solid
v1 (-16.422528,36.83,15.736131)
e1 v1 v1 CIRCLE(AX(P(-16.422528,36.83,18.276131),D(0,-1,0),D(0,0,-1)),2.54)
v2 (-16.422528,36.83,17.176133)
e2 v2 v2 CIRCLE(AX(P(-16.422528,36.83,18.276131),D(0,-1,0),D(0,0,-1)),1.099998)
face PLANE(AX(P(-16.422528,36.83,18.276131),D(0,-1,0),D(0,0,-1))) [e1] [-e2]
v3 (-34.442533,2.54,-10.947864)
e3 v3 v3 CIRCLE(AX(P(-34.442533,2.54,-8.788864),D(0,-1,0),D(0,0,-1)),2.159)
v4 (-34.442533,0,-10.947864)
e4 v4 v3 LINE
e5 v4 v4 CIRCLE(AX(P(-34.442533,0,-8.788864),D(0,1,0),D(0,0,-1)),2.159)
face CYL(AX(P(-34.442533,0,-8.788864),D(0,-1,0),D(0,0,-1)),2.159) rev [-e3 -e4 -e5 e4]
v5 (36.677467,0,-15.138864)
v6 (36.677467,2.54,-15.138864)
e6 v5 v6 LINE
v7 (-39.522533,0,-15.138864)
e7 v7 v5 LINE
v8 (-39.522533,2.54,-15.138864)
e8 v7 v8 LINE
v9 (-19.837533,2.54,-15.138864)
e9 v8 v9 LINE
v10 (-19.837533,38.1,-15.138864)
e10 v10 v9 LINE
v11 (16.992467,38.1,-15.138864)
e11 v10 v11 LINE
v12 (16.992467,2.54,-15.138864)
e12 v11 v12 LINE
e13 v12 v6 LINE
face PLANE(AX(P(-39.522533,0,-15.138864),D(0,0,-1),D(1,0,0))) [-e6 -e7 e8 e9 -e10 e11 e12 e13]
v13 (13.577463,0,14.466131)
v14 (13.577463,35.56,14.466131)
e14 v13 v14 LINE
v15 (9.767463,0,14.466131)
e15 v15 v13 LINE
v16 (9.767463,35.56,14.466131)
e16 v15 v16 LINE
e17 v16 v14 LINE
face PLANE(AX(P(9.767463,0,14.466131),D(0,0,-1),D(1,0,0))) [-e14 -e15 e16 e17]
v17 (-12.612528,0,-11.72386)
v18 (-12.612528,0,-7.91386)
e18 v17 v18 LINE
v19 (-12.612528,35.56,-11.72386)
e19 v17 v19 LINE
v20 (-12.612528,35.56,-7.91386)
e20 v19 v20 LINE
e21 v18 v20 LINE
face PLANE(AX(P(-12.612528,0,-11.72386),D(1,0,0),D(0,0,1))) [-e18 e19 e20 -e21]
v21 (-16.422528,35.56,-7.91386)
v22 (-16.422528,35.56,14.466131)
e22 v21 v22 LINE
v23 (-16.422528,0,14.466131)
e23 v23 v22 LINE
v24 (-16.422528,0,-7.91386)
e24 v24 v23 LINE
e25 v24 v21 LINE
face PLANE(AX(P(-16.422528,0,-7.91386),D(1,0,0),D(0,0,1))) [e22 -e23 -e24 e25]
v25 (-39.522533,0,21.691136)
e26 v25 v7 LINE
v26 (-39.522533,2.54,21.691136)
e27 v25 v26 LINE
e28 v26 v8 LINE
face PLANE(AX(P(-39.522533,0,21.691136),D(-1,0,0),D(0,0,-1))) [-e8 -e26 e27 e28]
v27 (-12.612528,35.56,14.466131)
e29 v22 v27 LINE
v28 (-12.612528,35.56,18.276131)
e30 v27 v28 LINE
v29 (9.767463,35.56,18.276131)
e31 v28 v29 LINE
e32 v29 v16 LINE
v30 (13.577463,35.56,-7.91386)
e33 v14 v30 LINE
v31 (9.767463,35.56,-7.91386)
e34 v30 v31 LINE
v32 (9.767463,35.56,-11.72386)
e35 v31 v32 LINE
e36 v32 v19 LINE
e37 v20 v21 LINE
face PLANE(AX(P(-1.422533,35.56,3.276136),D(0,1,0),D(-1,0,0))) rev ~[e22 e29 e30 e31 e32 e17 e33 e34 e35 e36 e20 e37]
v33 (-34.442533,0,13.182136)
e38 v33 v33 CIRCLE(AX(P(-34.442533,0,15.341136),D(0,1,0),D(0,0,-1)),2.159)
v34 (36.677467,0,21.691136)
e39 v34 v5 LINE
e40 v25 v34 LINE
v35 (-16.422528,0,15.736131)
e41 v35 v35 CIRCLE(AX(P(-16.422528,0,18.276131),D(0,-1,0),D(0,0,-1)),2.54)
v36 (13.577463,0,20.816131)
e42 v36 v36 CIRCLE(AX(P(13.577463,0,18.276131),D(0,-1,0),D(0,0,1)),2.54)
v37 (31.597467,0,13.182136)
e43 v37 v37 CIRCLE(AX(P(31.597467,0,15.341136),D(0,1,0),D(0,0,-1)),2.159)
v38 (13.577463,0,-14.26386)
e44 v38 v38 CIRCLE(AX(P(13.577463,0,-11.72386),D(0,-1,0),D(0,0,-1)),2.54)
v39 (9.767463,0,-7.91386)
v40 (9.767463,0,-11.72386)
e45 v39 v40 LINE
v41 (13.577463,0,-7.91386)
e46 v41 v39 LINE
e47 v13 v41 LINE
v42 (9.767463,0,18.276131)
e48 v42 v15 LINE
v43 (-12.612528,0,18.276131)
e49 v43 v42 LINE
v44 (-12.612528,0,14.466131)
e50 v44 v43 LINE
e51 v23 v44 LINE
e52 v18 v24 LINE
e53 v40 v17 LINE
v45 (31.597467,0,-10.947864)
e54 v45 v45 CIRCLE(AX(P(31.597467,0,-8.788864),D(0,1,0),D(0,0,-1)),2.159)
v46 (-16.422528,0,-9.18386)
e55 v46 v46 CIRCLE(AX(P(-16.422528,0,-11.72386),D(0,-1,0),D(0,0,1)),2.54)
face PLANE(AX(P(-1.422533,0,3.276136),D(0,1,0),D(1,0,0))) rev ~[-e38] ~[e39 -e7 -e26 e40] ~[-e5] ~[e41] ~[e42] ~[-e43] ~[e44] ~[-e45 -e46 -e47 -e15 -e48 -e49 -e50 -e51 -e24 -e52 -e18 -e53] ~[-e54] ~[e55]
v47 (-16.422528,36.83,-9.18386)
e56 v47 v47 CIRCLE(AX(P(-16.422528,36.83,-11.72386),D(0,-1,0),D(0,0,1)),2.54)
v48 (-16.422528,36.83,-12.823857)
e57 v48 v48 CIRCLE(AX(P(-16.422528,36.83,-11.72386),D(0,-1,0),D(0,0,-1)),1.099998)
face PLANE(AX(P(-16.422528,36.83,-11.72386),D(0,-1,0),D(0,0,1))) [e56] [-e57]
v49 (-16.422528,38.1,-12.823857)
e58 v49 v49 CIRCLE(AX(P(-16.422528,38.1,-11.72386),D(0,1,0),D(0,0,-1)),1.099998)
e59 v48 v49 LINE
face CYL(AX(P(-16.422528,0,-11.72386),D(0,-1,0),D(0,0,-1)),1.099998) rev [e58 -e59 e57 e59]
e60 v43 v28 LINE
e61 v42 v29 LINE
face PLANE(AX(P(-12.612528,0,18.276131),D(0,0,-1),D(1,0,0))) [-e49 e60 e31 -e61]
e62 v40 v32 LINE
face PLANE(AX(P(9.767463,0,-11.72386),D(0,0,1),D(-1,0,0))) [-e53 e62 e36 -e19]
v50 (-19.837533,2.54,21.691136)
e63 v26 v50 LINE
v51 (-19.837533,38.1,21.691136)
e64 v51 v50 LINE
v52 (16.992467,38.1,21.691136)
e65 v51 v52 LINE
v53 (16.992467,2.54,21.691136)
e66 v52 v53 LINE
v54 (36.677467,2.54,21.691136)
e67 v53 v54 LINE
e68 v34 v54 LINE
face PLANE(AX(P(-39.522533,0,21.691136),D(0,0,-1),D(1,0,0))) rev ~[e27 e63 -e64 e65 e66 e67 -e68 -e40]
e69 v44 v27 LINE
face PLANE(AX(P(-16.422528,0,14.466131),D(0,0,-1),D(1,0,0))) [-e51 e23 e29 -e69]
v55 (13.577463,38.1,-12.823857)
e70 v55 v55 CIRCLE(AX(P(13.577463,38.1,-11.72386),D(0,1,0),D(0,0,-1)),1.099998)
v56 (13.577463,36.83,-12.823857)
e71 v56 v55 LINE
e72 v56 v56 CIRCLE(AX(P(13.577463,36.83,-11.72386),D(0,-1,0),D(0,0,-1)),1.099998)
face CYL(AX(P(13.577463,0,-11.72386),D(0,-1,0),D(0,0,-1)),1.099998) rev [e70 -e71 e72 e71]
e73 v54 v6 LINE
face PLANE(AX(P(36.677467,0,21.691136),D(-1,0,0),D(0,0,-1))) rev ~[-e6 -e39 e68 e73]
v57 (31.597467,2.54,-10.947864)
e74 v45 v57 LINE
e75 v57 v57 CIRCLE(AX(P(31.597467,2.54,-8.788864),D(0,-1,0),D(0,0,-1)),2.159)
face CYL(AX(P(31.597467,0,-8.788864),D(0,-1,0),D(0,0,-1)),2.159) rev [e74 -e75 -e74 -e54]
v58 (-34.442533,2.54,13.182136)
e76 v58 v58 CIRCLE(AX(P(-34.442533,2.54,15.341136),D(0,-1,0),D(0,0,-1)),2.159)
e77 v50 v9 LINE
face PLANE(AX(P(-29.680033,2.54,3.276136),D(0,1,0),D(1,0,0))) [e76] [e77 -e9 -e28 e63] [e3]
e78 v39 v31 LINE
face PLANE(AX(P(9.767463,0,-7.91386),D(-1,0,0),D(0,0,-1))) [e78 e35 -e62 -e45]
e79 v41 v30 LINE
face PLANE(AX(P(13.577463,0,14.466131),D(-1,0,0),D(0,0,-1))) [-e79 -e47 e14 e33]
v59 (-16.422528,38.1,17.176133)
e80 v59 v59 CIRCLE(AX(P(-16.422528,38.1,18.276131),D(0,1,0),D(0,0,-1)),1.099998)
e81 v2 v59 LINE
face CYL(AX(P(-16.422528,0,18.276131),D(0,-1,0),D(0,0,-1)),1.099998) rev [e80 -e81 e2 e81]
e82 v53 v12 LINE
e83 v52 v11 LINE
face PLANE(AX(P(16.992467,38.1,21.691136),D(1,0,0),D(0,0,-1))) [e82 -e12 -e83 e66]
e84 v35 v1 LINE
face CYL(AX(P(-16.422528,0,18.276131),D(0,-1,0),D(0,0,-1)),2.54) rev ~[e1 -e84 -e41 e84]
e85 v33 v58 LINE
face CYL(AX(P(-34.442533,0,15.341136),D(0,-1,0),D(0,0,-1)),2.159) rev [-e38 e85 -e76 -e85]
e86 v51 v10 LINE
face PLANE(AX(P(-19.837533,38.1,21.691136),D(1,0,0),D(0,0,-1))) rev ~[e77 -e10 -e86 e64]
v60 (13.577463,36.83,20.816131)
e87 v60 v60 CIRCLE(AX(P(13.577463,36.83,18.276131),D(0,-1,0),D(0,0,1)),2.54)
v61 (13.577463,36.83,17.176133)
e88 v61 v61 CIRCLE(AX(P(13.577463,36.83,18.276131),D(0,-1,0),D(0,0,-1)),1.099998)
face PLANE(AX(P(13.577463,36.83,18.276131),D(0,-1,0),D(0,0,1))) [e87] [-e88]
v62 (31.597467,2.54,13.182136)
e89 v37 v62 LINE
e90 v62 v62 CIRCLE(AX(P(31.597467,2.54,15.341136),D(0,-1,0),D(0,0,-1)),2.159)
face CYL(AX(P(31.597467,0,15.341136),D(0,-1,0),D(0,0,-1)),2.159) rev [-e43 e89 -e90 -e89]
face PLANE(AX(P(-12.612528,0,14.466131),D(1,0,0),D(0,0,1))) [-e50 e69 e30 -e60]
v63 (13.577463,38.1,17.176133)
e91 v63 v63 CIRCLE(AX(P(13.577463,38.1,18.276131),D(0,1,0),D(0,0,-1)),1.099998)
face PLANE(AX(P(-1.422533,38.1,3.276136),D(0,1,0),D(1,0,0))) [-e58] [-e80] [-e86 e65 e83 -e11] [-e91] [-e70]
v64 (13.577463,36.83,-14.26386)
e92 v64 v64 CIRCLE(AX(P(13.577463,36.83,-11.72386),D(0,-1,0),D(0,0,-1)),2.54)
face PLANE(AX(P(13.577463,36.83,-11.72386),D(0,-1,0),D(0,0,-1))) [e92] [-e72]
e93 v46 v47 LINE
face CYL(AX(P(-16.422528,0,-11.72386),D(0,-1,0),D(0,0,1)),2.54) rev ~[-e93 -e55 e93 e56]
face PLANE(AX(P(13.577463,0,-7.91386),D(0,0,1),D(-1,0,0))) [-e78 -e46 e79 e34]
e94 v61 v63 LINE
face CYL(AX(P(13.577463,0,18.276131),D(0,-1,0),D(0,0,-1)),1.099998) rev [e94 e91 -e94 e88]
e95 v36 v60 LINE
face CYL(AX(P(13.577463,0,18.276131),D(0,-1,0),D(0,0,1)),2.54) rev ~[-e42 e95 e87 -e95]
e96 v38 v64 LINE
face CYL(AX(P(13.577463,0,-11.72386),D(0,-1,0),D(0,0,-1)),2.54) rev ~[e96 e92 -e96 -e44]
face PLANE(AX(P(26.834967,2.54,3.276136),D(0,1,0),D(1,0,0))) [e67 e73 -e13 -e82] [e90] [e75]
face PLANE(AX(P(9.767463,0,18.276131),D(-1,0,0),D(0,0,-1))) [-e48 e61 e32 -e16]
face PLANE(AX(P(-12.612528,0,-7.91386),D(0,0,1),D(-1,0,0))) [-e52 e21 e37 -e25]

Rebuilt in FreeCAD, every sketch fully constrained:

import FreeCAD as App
import Part
import Sketcher
from FreeCAD import Vector
Q = App.Units.Quantity


def add_polygon(sketch, points):
    """Adds a closed chain of lines whose ends are joined by coincident constraints."""
    first, n = sketch.GeometryCount, len(points)
    for a, b in zip(points, points[1:] + points[:1]):
        sketch.addGeometry(Part.LineSegment(App.Vector(*a, 0), App.Vector(*b, 0)), False)
    for i in range(n):
        sketch.addConstraint(Sketcher.Constraint("Coincident", first + i, 2, first + (i + 1) % n, 1))

doc = App.newDocument("Part")
params = doc.addObject("Spreadsheet::Sheet", "Params")
for row, (alias, value) in enumerate([
    ("sketch1_diameter", "0.17 in"),
    ("sketch1_width", "3 in"),
    ("sketch1_height", "1.45 in"),
    ("pad1_length", "1.5 in"),
    ("sketch2_diameter", "0.2 in"),
    ("pocket1_length", "1.45 in"),
    ("sketch3_height", "1.45 in"),
    ("sketch3_width", "0.775 in"),
    ("pocket2_length", "1.4 in"),
    ("sketch4_width", "0.15 in"),
    ("pocket3_length", "1.4 in"),
], start=1):
    params.set(f"A{row}", alias)
    params.set(f"B{row}", "=" + value)
    params.setAlias(f"B{row}", alias)

body = doc.addObject("PartDesign::Body", "Body")

sketch1 = body.newObject("Sketcher::SketchObject", "Sketch")
sketch1.AttachmentSupport = (doc.getObject("XZ_Plane"), [""])
sketch1.MapMode = "FlatFace"
add_polygon(sketch1, [(-39.5, -15.1), (-39.5, 21.7), (36.7, 21.7), (36.7, -15.1)])
sketch1.addGeometry(Part.Circle(Vector(-34.4, 15.3, 0), Vector(0, 0, 1), 2.2), False)
sketch1.addGeometry(Part.Circle(Vector(-16.4, 18.3, 0), Vector(0, 0, 1), 1.1), False)
sketch1.addGeometry(Part.Circle(Vector(13.6, 18.3, 0), Vector(0, 0, 1), 1.1), False)
sketch1.addGeometry(Part.Circle(Vector(31.6, 15.3, 0), Vector(0, 0, 1), 2.2), False)
sketch1.addGeometry(Part.Circle(Vector(-34.4, -8.8, 0), Vector(0, 0, 1), 2.2), False)
sketch1.addGeometry(Part.Circle(Vector(-16.4, -11.7, 0), Vector(0, 0, 1), 1.1), False)
sketch1.addGeometry(Part.Circle(Vector(13.6, -11.7, 0), Vector(0, 0, 1), 1.1), False)
sketch1.addGeometry(Part.Circle(Vector(31.6, -8.8, 0), Vector(0, 0, 1), 2.2), False)
sketch1.addConstraint([
    Sketcher.Constraint("Vertical", 0),
    Sketcher.Constraint("Horizontal", 1),
    Sketcher.Constraint("Vertical", 2),
    Sketcher.Constraint("Horizontal", 3),
    Sketcher.Constraint("Equal", 5, 6),
    Sketcher.Constraint("Equal", 4, 7),
    Sketcher.Constraint("Equal", 7, 8),
    Sketcher.Constraint("Equal", 6, 9),
    Sketcher.Constraint("Equal", 9, 10),
    Sketcher.Constraint("Equal", 8, 11),
    Sketcher.Constraint("Horizontal", 5, 3, 6, 3),
    Sketcher.Constraint("Horizontal", 4, 3, 7, 3),
    Sketcher.Constraint("Horizontal", 9, 3, 10, 3),
    Sketcher.Constraint("Horizontal", 8, 3, 11, 3),
    Sketcher.Constraint("Vertical", 4, 3, 8, 3),
    Sketcher.Constraint("Vertical", 5, 3, 9, 3),
    Sketcher.Constraint("Vertical", 6, 3, 10, 3),
    Sketcher.Constraint("Vertical", 7, 3, 11, 3),
    Sketcher.Constraint("Diameter", 4, Q("0.17 in")),
    Sketcher.Constraint("DistanceX", 1, 1, 1, 2, Q("3 in")),
    Sketcher.Constraint("DistanceY", 0, 1, 0, 2, Q("1.45 in")),
    Sketcher.Constraint("DistanceX", 4, 3, 7, 3, Q("2.6 in")),
    Sketcher.Constraint("DistanceX", 0, 2, 4, 3, Q("0.2 in")),
    Sketcher.Constraint("DistanceY", 8, 3, 0, 2, Q("1.2 in")),
    Sketcher.Constraint("DistanceY", 2, 2, 7, 3, Q("1.2 in")),
    Sketcher.Constraint("Diameter", 5, Q("2.199996 mm")),
    Sketcher.Constraint("DistanceX", 5, 3, -1, 1, Q("16.422528 mm")),
    Sketcher.Constraint("DistanceY", -1, 1, 5, 3, Q("18.276131 mm")),
    Sketcher.Constraint("DistanceY", 9, 3, -1, 1, Q("11.72386 mm")),
    Sketcher.Constraint("DistanceX", 5, 3, 6, 3, Q("29.999991 mm")),
    Sketcher.Constraint("DistanceX", 4, 3, -1, 1, Q("34.442533 mm")),
    Sketcher.Constraint("DistanceY", -1, 1, 4, 3, Q("15.341136 mm")),
])
sketch1.setExpression("Constraints[22]", "Params.sketch1_diameter")
sketch1.setExpression("Constraints[23]", "Params.sketch1_width")
sketch1.setExpression("Constraints[24]", "Params.sketch1_height")
pad1 = body.newObject("PartDesign::Pad", "Pad")
pad1.Profile = sketch1
pad1.setExpression("Length", "Params.pad1_length")
pad1.Reversed = True

sketch2 = body.newObject("Sketcher::SketchObject", "Sketch001")
sketch2.AttachmentSupport = (doc.getObject("XZ_Plane"), [""])
sketch2.MapMode = "FlatFace"
sketch2.addGeometry([
    Part.Circle(Vector(-16.4, 18.3, 0), Vector(0, 0, 1), 2.5),
    Part.Circle(Vector(13.6, 18.3, 0), Vector(0, 0, 1), 2.5),
    Part.Circle(Vector(13.6, -11.7, 0), Vector(0, 0, 1), 2.5),
    Part.Circle(Vector(-16.4, -11.7, 0), Vector(0, 0, 1), 2.5),
], False)
sketch2.addConstraint([
    Sketcher.Constraint("Equal", 0, 1),
    Sketcher.Constraint("Equal", 1, 2),
    Sketcher.Constraint("Equal", 2, 3),
    Sketcher.Constraint("Horizontal", 0, 3, 1, 3),
    Sketcher.Constraint("Horizontal", 2, 3, 3, 3),
    Sketcher.Constraint("Vertical", 1, 3, 2, 3),
    Sketcher.Constraint("Vertical", 0, 3, 3, 3),
    Sketcher.Constraint("Diameter", 0, Q("0.2 in")),
    Sketcher.Constraint("DistanceX", 0, 3, -1, 1, Q("16.422528 mm")),
    Sketcher.Constraint("DistanceY", -1, 1, 0, 3, Q("18.276131 mm")),
    Sketcher.Constraint("DistanceY", 2, 3, -1, 1, Q("11.72386 mm")),
    Sketcher.Constraint("DistanceX", 0, 3, 1, 3, Q("29.999991 mm")),
])
sketch2.setExpression("Constraints[7]", "Params.sketch2_diameter")
pocket1 = body.newObject("PartDesign::Pocket", "Pocket")
pocket1.Profile = sketch2
pocket1.setExpression("Length", "Params.pocket1_length")

sketch3 = body.newObject("Sketcher::SketchObject", "Sketch002")
sketch3.AttachmentSupport = (doc.getObject("XZ_Plane"), [""])
sketch3.MapMode = "FlatFace"
sketch3.AttachmentOffset = App.Placement(Vector(0, 0, -1.5 * 25.4), App.Rotation())
add_polygon(sketch3, [(-40, -15), (-40, 22), (-20, 22), (-20, -15)])
add_polygon(sketch3, [(17, -15), (17, 22), (37, 22), (37, -15)])
sketch3.addConstraint([
    Sketcher.Constraint("Vertical", 0),
    Sketcher.Constraint("Horizontal", 1),
    Sketcher.Constraint("Vertical", 2),
    Sketcher.Constraint("Horizontal", 3),
    Sketcher.Constraint("Vertical", 4),
    Sketcher.Constraint("Horizontal", 5),
    Sketcher.Constraint("Vertical", 6),
    Sketcher.Constraint("Horizontal", 7),
    Sketcher.Constraint("Horizontal", 1, 2, 4, 2),
    Sketcher.Constraint("Horizontal", 3, 2, 6, 2),
    Sketcher.Constraint("Equal", 3, 5),
    Sketcher.Constraint("DistanceX", 0, 2, 5, 2, Q("3 in")),
    Sketcher.Constraint("DistanceY", 0, 1, 0, 2, Q("1.45 in")),
    Sketcher.Constraint("DistanceX", 1, 1, 1, 2, Q("0.775 in")),
    Sketcher.Constraint("DistanceX", 0, 2, -1, 1, Q("39.522533 mm")),
    Sketcher.Constraint("DistanceY", -1, 1, 0, 2, Q("21.691136 mm")),
])
sketch3.setExpression("Constraints[20]", "Params.sketch3_height")
sketch3.setExpression("Constraints[21]", "Params.sketch3_width")
pocket2 = body.newObject("PartDesign::Pocket", "Pocket001")
pocket2.Profile = sketch3
pocket2.setExpression("Length", "Params.pocket2_length")
pocket2.Reversed = True

sketch4 = body.newObject("Sketcher::SketchObject", "Sketch003")
sketch4.AttachmentSupport = (doc.getObject("XZ_Plane"), [""])
sketch4.MapMode = "FlatFace"
add_polygon(sketch4, [(9.8, -11.7), (9.8, -7.9), (13.6, -7.9), (13.6, 14.5), (9.8, 14.5), (9.8, 18.3), (-12.6, 18.3), (-12.6, 14.5), (-16.4, 14.5), (-16.4, -7.9), (-12.6, -7.9), (-12.6, -11.7)])
sketch4.addConstraint([
    Sketcher.Constraint("Vertical", 0),
    Sketcher.Constraint("Horizontal", 1),
    Sketcher.Constraint("Vertical", 2),
    Sketcher.Constraint("Horizontal", 3),
    Sketcher.Constraint("Vertical", 4),
    Sketcher.Constraint("Horizontal", 5),
    Sketcher.Constraint("Vertical", 6),
    Sketcher.Constraint("Horizontal", 7),
    Sketcher.Constraint("Vertical", 8),
    Sketcher.Constraint("Horizontal", 9),
    Sketcher.Constraint("Vertical", 10),
    Sketcher.Constraint("Horizontal", 11),
    Sketcher.Constraint("Horizontal", 3, 2, 6, 2),
    Sketcher.Constraint("Horizontal", 1, 2, 8, 2),
    Sketcher.Constraint("Vertical", 0, 2, 3, 2),
    Sketcher.Constraint("Vertical", 6, 2, 9, 2),
    Sketcher.Constraint("Equal", 3, 7),
    Sketcher.Constraint("Equal", 9, 0),
    Sketcher.Constraint("Equal", 11, 2),
    Sketcher.Constraint("Equal", 0, 4),
    Sketcher.Constraint("DistanceX", 1, 1, 1, 2, Q("0.15 in")),
    Sketcher.Constraint("DistanceX", 5, 2, 5, 1, Q("22.379991 mm")),
    Sketcher.Constraint("DistanceY", 0, 2, -1, 1, Q("7.91386 mm")),
    Sketcher.Constraint("DistanceX", 5, 2, -1, 1, Q("12.612528 mm")),
])
sketch4.setExpression("Constraints[32]", "Params.sketch4_width")
pocket3 = body.newObject("PartDesign::Pocket", "Pocket002")
pocket3.Profile = sketch4
pocket3.setExpression("Length", "Params.pocket3_length")

doc.recompute()
